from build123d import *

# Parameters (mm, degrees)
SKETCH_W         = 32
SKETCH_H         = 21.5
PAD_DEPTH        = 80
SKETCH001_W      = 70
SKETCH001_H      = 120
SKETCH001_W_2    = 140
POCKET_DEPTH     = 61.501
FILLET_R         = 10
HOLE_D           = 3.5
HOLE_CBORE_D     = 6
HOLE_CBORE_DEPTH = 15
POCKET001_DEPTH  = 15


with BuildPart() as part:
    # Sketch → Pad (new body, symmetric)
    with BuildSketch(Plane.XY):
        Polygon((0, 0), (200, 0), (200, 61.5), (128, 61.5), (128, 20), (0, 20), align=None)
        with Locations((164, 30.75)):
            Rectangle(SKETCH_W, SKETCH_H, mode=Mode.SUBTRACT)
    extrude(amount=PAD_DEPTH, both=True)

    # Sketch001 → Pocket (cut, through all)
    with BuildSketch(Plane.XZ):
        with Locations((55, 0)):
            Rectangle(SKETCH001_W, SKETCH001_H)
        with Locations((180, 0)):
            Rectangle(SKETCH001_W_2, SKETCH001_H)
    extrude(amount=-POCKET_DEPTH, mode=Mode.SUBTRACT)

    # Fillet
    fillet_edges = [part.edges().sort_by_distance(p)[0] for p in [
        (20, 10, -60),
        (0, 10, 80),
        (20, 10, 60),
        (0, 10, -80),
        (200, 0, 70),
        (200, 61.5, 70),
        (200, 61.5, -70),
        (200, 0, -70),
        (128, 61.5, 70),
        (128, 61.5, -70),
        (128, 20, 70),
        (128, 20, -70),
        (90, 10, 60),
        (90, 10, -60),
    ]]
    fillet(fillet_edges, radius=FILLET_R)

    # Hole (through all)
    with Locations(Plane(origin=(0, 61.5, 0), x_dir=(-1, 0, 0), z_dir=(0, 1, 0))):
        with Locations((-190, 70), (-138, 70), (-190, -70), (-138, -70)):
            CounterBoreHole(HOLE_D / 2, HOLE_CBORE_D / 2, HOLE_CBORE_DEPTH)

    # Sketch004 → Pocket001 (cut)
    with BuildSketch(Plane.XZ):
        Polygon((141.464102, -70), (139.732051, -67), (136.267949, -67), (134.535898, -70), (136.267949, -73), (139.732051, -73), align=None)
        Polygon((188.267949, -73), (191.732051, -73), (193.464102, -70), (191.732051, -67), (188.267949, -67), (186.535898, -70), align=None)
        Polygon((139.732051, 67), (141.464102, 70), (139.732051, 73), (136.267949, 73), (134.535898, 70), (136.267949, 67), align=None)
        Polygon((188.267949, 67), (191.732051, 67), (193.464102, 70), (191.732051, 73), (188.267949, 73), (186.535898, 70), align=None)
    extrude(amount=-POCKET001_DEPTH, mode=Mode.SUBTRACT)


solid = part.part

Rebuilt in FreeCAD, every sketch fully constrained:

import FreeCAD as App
import Part
import Sketcher
Q = App.Units.Quantity


def edges_at(feature, points):
    """Names of the edges that pass closest to the given points."""
    edges = feature.Shape.Edges
    near = lambda p: min(range(len(edges)), key=lambda i: edges[i].distToShape(Part.Vertex(*p))[0])
    return sorted({f"Edge{near(p) + 1}" for p in points})

doc = App.newDocument("Part")
body = doc.addObject("PartDesign::Body", "Body")

sketch1 = doc.addObject("Sketcher::SketchObject", "Sketch")
body.addObject(sketch1)
sketch1.AttachmentSupport = (doc.XY_Plane, [""])
sketch1.MapMode = "FlatFace"
sketch1.addGeometry([
    Part.LineSegment(App.Vector(0, 0, 0), App.Vector(200, 0, 0)),
    Part.LineSegment(App.Vector(200, 0, 0), App.Vector(200, 61.5, 0)),
    Part.LineSegment(App.Vector(200, 61.5, 0), App.Vector(128, 61.5, 0)),
    Part.LineSegment(App.Vector(128, 61.5, 0), App.Vector(128, 20, 0)),
    Part.LineSegment(App.Vector(128, 20, 0), App.Vector(0, 20, 0)),
    Part.LineSegment(App.Vector(0, 20, 0), App.Vector(0, 0, 0)),
    Part.LineSegment(App.Vector(180, 20, 0), App.Vector(148, 20, 0)),
    Part.LineSegment(App.Vector(148, 20, 0), App.Vector(148, 41.5, 0)),
    Part.LineSegment(App.Vector(148, 41.5, 0), App.Vector(180, 41.5, 0)),
    Part.LineSegment(App.Vector(180, 41.5, 0), App.Vector(180, 20, 0)),
], False)
sketch1.addConstraint([
    Sketcher.Constraint("Coincident", 0, 2, 1, 1),
    Sketcher.Constraint("Coincident", 1, 2, 2, 1),
    Sketcher.Constraint("Coincident", 2, 2, 3, 1),
    Sketcher.Constraint("Coincident", 3, 2, 4, 1),
    Sketcher.Constraint("Coincident", 4, 2, 5, 1),
    Sketcher.Constraint("Coincident", 5, 2, 0, 1),
    Sketcher.Constraint("Coincident", 6, 2, 7, 1),
    Sketcher.Constraint("Coincident", 7, 2, 8, 1),
    Sketcher.Constraint("Coincident", 8, 2, 9, 1),
    Sketcher.Constraint("Coincident", 9, 2, 6, 1),
    Sketcher.Constraint("Horizontal", 0),
    Sketcher.Constraint("Vertical", 1),
    Sketcher.Constraint("Horizontal", 2),
    Sketcher.Constraint("Vertical", 3),
    Sketcher.Constraint("Horizontal", 4),
    Sketcher.Constraint("Vertical", 5),
    Sketcher.Constraint("Horizontal", 6),
    Sketcher.Constraint("Vertical", 7),
    Sketcher.Constraint("Horizontal", 8),
    Sketcher.Constraint("Vertical", 9),
    Sketcher.Constraint("Coincident", 5, 2, -1, 1),
    Sketcher.Constraint("Horizontal", 4, 2, 6, 2),
    Sketcher.Constraint("DistanceX", 0, 1, 0, 2, Q("200 mm")),
    Sketcher.Constraint("DistanceX", 2, 2, 2, 1, Q("72 mm")),
    Sketcher.Constraint("DistanceX", 6, 2, 6, 1, Q("32 mm")),
    Sketcher.Constraint("DistanceY", 5, 2, 5, 1, Q("20 mm")),
    Sketcher.Constraint("DistanceY", 1, 1, 1, 2, Q("61.5 mm")),
    Sketcher.Constraint("DistanceY", 7, 1, 7, 2, Q("21.5 mm")),
    Sketcher.Constraint("DistanceX", -1, 1, 6, 2, Q("148 mm")),
])
pad1 = doc.addObject("PartDesign::Pad", "Pad")
body.addObject(pad1)
pad1.Profile = sketch1
pad1.Length = 160
pad1.Midplane = True

sketch2 = doc.addObject("Sketcher::SketchObject", "Sketch001")
body.addObject(sketch2)
sketch2.AttachmentSupport = (doc.XZ_Plane, [""])
sketch2.MapMode = "FlatFace"
sketch2.addGeometry([
    Part.LineSegment(App.Vector(20, 60, 0), App.Vector(20, -60, 0)),
    Part.LineSegment(App.Vector(20, -60, 0), App.Vector(90, -60, 0)),
    Part.LineSegment(App.Vector(90, -60, 0), App.Vector(90, 60, 0)),
    Part.LineSegment(App.Vector(90, 60, 0), App.Vector(20, 60, 0)),
    Part.LineSegment(App.Vector(110, 60, 0), App.Vector(110, -60, 0)),
    Part.LineSegment(App.Vector(110, -60, 0), App.Vector(250, -60, 0)),
    Part.LineSegment(App.Vector(250, -60, 0), App.Vector(250, 60, 0)),
    Part.LineSegment(App.Vector(250, 60, 0), App.Vector(110, 60, 0)),
], False)
sketch2.addConstraint([
    Sketcher.Constraint("Coincident", 0, 2, 1, 1),
    Sketcher.Constraint("Coincident", 1, 2, 2, 1),
    Sketcher.Constraint("Coincident", 2, 2, 3, 1),
    Sketcher.Constraint("Coincident", 3, 2, 0, 1),
    Sketcher.Constraint("Coincident", 4, 2, 5, 1),
    Sketcher.Constraint("Coincident", 5, 2, 6, 1),
    Sketcher.Constraint("Coincident", 6, 2, 7, 1),
    Sketcher.Constraint("Coincident", 7, 2, 4, 1),
    Sketcher.Constraint("Vertical", 0),
    Sketcher.Constraint("Horizontal", 1),
    Sketcher.Constraint("Vertical", 2),
    Sketcher.Constraint("Horizontal", 3),
    Sketcher.Constraint("Vertical", 4),
    Sketcher.Constraint("Horizontal", 5),
    Sketcher.Constraint("Vertical", 6),
    Sketcher.Constraint("Horizontal", 7),
    Sketcher.Constraint("Horizontal", 1, 2, 4, 2),
    Sketcher.Constraint("Horizontal", 3, 2, 6, 2),
    Sketcher.Constraint("DistanceX", 1, 1, 1, 2, Q("70 mm")),
    Sketcher.Constraint("DistanceX", 5, 1, 5, 2, Q("140 mm")),
    Sketcher.Constraint("DistanceY", 0, 2, 0, 1, Q("120 mm")),
    Sketcher.Constraint("DistanceX", -1, 1, 0, 2, Q("20 mm")),
    Sketcher.Constraint("DistanceY", 0, 2, -1, 1, Q("60 mm")),
    Sketcher.Constraint("DistanceX", -1, 1, 4, 2, Q("110 mm")),
])
pocket1 = doc.addObject("PartDesign::Pocket", "Pocket")
body.addObject(pocket1)
pocket1.Profile = sketch2
pocket1.Type = "ThroughAll"
doc.recompute()

fillet = doc.addObject("PartDesign::Fillet", "Fillet")
body.addObject(fillet)
fillet.Base = (pocket1, edges_at(pocket1, [
    (20, 10, -60),
    (0, 10, 80),
    (20, 10, 60),
    (0, 10, -80),
    (200, 0, 70),
    (200, 61.5, 70),
    (200, 61.5, -70),
    (200, 0, -70),
    (128, 61.5, 70),
    (128, 61.5, -70),
    (128, 20, 70),
    (128, 20, -70),
    (90, 10, 60),
    (90, 10, -60),
]))
fillet.Radius = 10

sketch3 = doc.addObject("Sketcher::SketchObject", "Sketch002")
body.addObject(sketch3)
sketch3.AttachmentSupport = (doc.XZ_Plane, [""])
sketch3.MapMode = "FlatFace"
sketch3.AttachmentOffset = App.Placement(App.Vector(0, 0, -61.5), App.Rotation())
sketch3.addGeometry([
    Part.Circle(App.Vector(190, 70, 0), App.Vector(0, 0, 1), 1.75),
    Part.Circle(App.Vector(138, 70, 0), App.Vector(0, 0, 1), 1.75),
    Part.Circle(App.Vector(190, -70, 0), App.Vector(0, 0, 1), 1.75),
    Part.Circle(App.Vector(138, -70, 0), App.Vector(0, 0, 1), 1.75),
], False)
sketch3.addConstraint([
    Sketcher.Constraint("Equal", 0, 1),
    Sketcher.Constraint("Equal", 1, 2),
    Sketcher.Constraint("Equal", 2, 3),
    Sketcher.Constraint("Symmetric", 0, 3, 2, 3, -1),
    Sketcher.Constraint("Symmetric", 1, 3, 3, 3, -1),
    Sketcher.Constraint("Horizontal", 0, 3, 1, 3),
    Sketcher.Constraint("Diameter", 0, Q("3.5 mm")),
    Sketcher.Constraint("DistanceX", -1, 1, 0, 3, Q("190 mm")),
    Sketcher.Constraint("DistanceY", -1, 1, 0, 3, Q("70 mm")),
    Sketcher.Constraint("DistanceX", -1, 1, 1, 3, Q("138 mm")),
])
doc.recompute()
hole = doc.addObject("PartDesign::Hole", "Hole")
body.addObject(hole)
hole.Profile = sketch3
hole.ThreadType = "None"
hole.Diameter = 3.5
hole.DepthType = "ThroughAll"
hole.HoleCutType = "Counterbore"
hole.HoleCutDiameter = 6
hole.HoleCutDepth = 15
hole.Reversed = True

sketch4 = doc.addObject("Sketcher::SketchObject", "Sketch003")
body.addObject(sketch4)
sketch4.AttachmentSupport = (doc.XZ_Plane, [""])
sketch4.MapMode = "FlatFace"
sketch4.addGeometry([
    Part.LineSegment(App.Vector(141.464102, -70, 0), App.Vector(139.732051, -67, 0)),
    Part.LineSegment(App.Vector(139.732051, -67, 0), App.Vector(136.267949, -67, 0)),
    Part.LineSegment(App.Vector(136.267949, -67, 0), App.Vector(134.535898, -70, 0)),
    Part.LineSegment(App.Vector(134.535898, -70, 0), App.Vector(136.267949, -73, 0)),
    Part.LineSegment(App.Vector(136.267949, -73, 0), App.Vector(139.732051, -73, 0)),
    Part.LineSegment(App.Vector(139.732051, -73, 0), App.Vector(141.464102, -70, 0)),
    Part.LineSegment(App.Vector(188.267949, -73, 0), App.Vector(191.732051, -73, 0)),
    Part.LineSegment(App.Vector(191.732051, -73, 0), App.Vector(193.464102, -70, 0)),
    Part.LineSegment(App.Vector(193.464102, -70, 0), App.Vector(191.732051, -67, 0)),
    Part.LineSegment(App.Vector(191.732051, -67, 0), App.Vector(188.267949, -67, 0)),
    Part.LineSegment(App.Vector(188.267949, -67, 0), App.Vector(186.535898, -70, 0)),
    Part.LineSegment(App.Vector(186.535898, -70, 0), App.Vector(188.267949, -73, 0)),
    Part.LineSegment(App.Vector(139.732051, 67, 0), App.Vector(141.464102, 70, 0)),
    Part.LineSegment(App.Vector(141.464102, 70, 0), App.Vector(139.732051, 73, 0)),
    Part.LineSegment(App.Vector(139.732051, 73, 0), App.Vector(136.267949, 73, 0)),
    Part.LineSegment(App.Vector(136.267949, 73, 0), App.Vector(134.535898, 70, 0)),
    Part.LineSegment(App.Vector(134.535898, 70, 0), App.Vector(136.267949, 67, 0)),
    Part.LineSegment(App.Vector(136.267949, 67, 0), App.Vector(139.732051, 67, 0)),
    Part.LineSegment(App.Vector(188.267949, 67, 0), App.Vector(191.732051, 67, 0)),
    Part.LineSegment(App.Vector(191.732051, 67, 0), App.Vector(193.464102, 70, 0)),
    Part.LineSegment(App.Vector(193.464102, 70, 0), App.Vector(191.732051, 73, 0)),
    Part.LineSegment(App.Vector(191.732051, 73, 0), App.Vector(188.267949, 73, 0)),
    Part.LineSegment(App.Vector(188.267949, 73, 0), App.Vector(186.535898, 70, 0)),
    Part.LineSegment(App.Vector(186.535898, 70, 0), App.Vector(188.267949, 67, 0)),
], False)
sketch4.addConstraint([
    Sketcher.Constraint("Coincident", 0, 2, 1, 1),
    Sketcher.Constraint("Coincident", 1, 2, 2, 1),
    Sketcher.Constraint("Coincident", 2, 2, 3, 1),
    Sketcher.Constraint("Coincident", 3, 2, 4, 1),
    Sketcher.Constraint("Coincident", 4, 2, 5, 1),
    Sketcher.Constraint("Coincident", 5, 2, 0, 1),
    Sketcher.Constraint("Coincident", 6, 2, 7, 1),
    Sketcher.Constraint("Coincident", 7, 2, 8, 1),
    Sketcher.Constraint("Coincident", 8, 2, 9, 1),
    Sketcher.Constraint("Coincident", 9, 2, 10, 1),
    Sketcher.Constraint("Coincident", 10, 2, 11, 1),
    Sketcher.Constraint("Coincident", 11, 2, 6, 1),
    Sketcher.Constraint("Coincident", 12, 2, 13, 1),
    Sketcher.Constraint("Coincident", 13, 2, 14, 1),
    Sketcher.Constraint("Coincident", 14, 2, 15, 1),
    Sketcher.Constraint("Coincident", 15, 2, 16, 1),
    Sketcher.Constraint("Coincident", 16, 2, 17, 1),
    Sketcher.Constraint("Coincident", 17, 2, 12, 1),
    Sketcher.Constraint("Coincident", 18, 2, 19, 1),
    Sketcher.Constraint("Coincident", 19, 2, 20, 1),
    Sketcher.Constraint("Coincident", 20, 2, 21, 1),
    Sketcher.Constraint("Coincident", 21, 2, 22, 1),
    Sketcher.Constraint("Coincident", 22, 2, 23, 1),
    Sketcher.Constraint("Coincident", 23, 2, 18, 1),
    Sketcher.Constraint("Horizontal", 1),
    Sketcher.Constraint("Horizontal", 4),
    Sketcher.Constraint("Horizontal", 6),
    Sketcher.Constraint("Horizontal", 9),
    Sketcher.Constraint("Horizontal", 14),
    Sketcher.Constraint("Horizontal", 17),
    Sketcher.Constraint("Horizontal", 18),
    Sketcher.Constraint("Horizontal", 21),
    Sketcher.Constraint("Symmetric", 5, 2, 12, 2, -1),
    Sketcher.Constraint("Symmetric", 4, 2, 13, 2, -1),
    Sketcher.Constraint("Symmetric", 2, 2, 15, 2, -1),
    Sketcher.Constraint("Symmetric", 1, 2, 16, 2, -1),
    Sketcher.Constraint("Symmetric", 8, 2, 18, 2, -1),
    Sketcher.Constraint("Symmetric", 7, 2, 19, 2, -1),
    Sketcher.Constraint("Symmetric", 6, 2, 20, 2, -1),
    Sketcher.Constraint("Symmetric", 10, 2, 22, 2, -1),
    Sketcher.Constraint("Parallel", 0, 3),
    Sketcher.Constraint("Parallel", 2, 5),
    Sketcher.Constraint("Parallel", 5, 7),
    Sketcher.Constraint("Parallel", 3, 8),
    Sketcher.Constraint("Parallel", 7, 10),
    Sketcher.Constraint("Parallel", 8, 11),
    Sketcher.Constraint("Parallel", 10, 12),
    Sketcher.Constraint("Parallel", 11, 13),
    Sketcher.Constraint("Parallel", 12, 15),
    Sketcher.Constraint("Parallel", 19, 22),
    Sketcher.Constraint("Parallel", 20, 23),
    Sketcher.Constraint("Horizontal", 2, 2, 5, 2),
    Sketcher.Constraint("Horizontal", 4, 2, 6, 2),
    Sketcher.Constraint("Horizontal", 5, 2, 7, 2),
    Sketcher.Constraint("Horizontal", 1, 2, 8, 2),
    Sketcher.Constraint("Horizontal", 7, 2, 10, 2),
    Sketcher.Constraint("Vertical", 1, 2, 3, 2),
    Sketcher.Constraint("Equal", 4, 6),
    Sketcher.Constraint("Angle", 0, Q("120.000003 deg")),
    Sketcher.Constraint("DistanceY", 0, 2, -1, 1, Q("67 mm")),
    Sketcher.Constraint("DistanceY", 2, 2, -1, 1, Q("70 mm")),
    Sketcher.Constraint("DistanceX", 4, 2, 6, 2, Q("52 mm")),
    Sketcher.Constraint("DistanceX", -1, 1, 2, 2, Q("134.535898 mm")),
    Sketcher.Constraint("DistanceX", -1, 1, 5, 2, Q("141.464102 mm")),
])
pocket2 = doc.addObject("PartDesign::Pocket", "Pocket001")
body.addObject(pocket2)
pocket2.Profile = sketch4
pocket2.Length = 15

doc.recompute()
